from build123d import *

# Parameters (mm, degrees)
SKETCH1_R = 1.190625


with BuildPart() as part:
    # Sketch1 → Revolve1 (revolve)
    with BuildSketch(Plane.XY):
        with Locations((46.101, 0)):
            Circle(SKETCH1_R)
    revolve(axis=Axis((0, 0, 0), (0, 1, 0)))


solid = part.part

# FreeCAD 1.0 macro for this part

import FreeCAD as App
import Part
import Sketcher
from FreeCAD import Vector
Q = App.Units.Quantity

doc = App.newDocument("Part")
body = doc.addObject("PartDesign::Body", "Body")

# Sketch on XY plane
sketch1 = doc.addObject("Sketcher::SketchObject", "Sketch")
body.addObject(sketch1)
sketch1.AttachmentSupport = (doc.XY_Plane, [""])
sketch1.MapMode = "FlatFace"
sketch1.addGeometry(Part.Circle(Vector(46.1, 0, 0), Vector(0, 0, 1), 1.2), False)
sketch1.addConstraint([
    Sketcher.Constraint("PointOnObject", 0, 3, -1),
    Sketcher.Constraint("Diameter", 0, Q("0.09375 in")),
    Sketcher.Constraint("DistanceX", -1, 1, 0, 3, Q("1.815 in")),
])
revolution = doc.addObject("PartDesign::Revolution", "Revolution")
body.addObject(revolution)
revolution.Profile = sketch1
revolution.ReferenceAxis = (sketch1, ["V_Axis"])
revolution.Angle = 360

doc.recompute()
